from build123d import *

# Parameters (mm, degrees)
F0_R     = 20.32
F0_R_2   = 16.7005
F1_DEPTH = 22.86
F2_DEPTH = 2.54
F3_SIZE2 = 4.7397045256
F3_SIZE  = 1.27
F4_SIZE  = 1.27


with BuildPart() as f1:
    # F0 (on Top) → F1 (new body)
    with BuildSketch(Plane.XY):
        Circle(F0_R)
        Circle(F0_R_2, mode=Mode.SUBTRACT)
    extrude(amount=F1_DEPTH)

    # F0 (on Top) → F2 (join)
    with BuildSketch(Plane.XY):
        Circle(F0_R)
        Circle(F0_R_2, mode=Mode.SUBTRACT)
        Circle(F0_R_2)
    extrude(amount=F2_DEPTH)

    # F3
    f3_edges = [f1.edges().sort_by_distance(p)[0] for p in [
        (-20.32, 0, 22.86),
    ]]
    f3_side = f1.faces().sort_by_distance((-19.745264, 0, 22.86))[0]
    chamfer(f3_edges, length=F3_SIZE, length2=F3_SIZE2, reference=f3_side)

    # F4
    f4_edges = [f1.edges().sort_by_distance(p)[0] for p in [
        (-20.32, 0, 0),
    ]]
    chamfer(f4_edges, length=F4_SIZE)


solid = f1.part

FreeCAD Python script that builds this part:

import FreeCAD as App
import Part
import Sketcher
Q = App.Units.Quantity


def edges_at(feature, points):
    """Names of the edges that pass closest to the given points."""
    edges = feature.Shape.Edges
    near = lambda p: min(range(len(edges)), key=lambda i: edges[i].distToShape(Part.Vertex(*p))[0])
    return sorted({f"Edge{near(p) + 1}" for p in points})

doc = App.newDocument("Part")
body = doc.addObject("PartDesign::Body", "Body")

# Sketch on XY plane
sketch1 = doc.addObject("Sketcher::SketchObject", "Sketch")
body.addObject(sketch1)
sketch1.AttachmentSupport = (doc.XY_Plane, [""])
sketch1.MapMode = "FlatFace"
sketch1.addGeometry(Part.Circle(App.Vector(0, 0, 0), App.Vector(0, 0, 1), 20), False)
sketch1.addGeometry(Part.Circle(App.Vector(0, 0, 0), App.Vector(0, 0, 1), 17), False)
sketch1.addConstraint(Sketcher.Constraint("Coincident", 0, 3, -1, 1))
sketch1.addConstraint(Sketcher.Constraint("Coincident", 1, 3, -1, 1))
sketch1.addConstraint(Sketcher.Constraint("Diameter", 0, Q("1.6 in")))
sketch1.addConstraint(Sketcher.Constraint("Diameter", 1, Q("1.315 in")))
pad1 = doc.addObject("PartDesign::Pad", "Pad")
body.addObject(pad1)
pad1.Profile = sketch1
pad1.Length = Q("0.9 in")

# Sketch on XY plane
sketch2 = doc.addObject("Sketcher::SketchObject", "Sketch001")
body.addObject(sketch2)
sketch2.AttachmentSupport = (doc.XY_Plane, [""])
sketch2.MapMode = "FlatFace"
sketch2.addGeometry(Part.Circle(App.Vector(0, 0, 0), App.Vector(0, 0, 1), 20), False)
sketch2.addConstraint(Sketcher.Constraint("Coincident", 0, 3, -1, 1))
sketch2.addConstraint(Sketcher.Constraint("Diameter", 0, Q("1.6 in")))
pad2 = doc.addObject("PartDesign::Pad", "Pad001")
body.addObject(pad2)
pad2.Profile = sketch2
pad2.Length = Q("0.1 in")
doc.recompute()

chamfer = doc.addObject("PartDesign::Chamfer", "Chamfer")
body.addObject(chamfer)
chamfer.Base = (pad2, edges_at(pad2, [(-20.32, 0, 22.86)]))
chamfer.ChamferType = "Two distances"
chamfer.Size = Q("0.05 in")
chamfer.Size2 = 4.739705
chamfer.FlipDirection = True
doc.recompute()

chamfer2 = doc.addObject("PartDesign::Chamfer", "Chamfer001")
body.addObject(chamfer2)
chamfer2.Base = (chamfer, edges_at(chamfer, [(-20.32, 0, 0)]))
chamfer2.Size = Q("0.05 in")

doc.recompute()
